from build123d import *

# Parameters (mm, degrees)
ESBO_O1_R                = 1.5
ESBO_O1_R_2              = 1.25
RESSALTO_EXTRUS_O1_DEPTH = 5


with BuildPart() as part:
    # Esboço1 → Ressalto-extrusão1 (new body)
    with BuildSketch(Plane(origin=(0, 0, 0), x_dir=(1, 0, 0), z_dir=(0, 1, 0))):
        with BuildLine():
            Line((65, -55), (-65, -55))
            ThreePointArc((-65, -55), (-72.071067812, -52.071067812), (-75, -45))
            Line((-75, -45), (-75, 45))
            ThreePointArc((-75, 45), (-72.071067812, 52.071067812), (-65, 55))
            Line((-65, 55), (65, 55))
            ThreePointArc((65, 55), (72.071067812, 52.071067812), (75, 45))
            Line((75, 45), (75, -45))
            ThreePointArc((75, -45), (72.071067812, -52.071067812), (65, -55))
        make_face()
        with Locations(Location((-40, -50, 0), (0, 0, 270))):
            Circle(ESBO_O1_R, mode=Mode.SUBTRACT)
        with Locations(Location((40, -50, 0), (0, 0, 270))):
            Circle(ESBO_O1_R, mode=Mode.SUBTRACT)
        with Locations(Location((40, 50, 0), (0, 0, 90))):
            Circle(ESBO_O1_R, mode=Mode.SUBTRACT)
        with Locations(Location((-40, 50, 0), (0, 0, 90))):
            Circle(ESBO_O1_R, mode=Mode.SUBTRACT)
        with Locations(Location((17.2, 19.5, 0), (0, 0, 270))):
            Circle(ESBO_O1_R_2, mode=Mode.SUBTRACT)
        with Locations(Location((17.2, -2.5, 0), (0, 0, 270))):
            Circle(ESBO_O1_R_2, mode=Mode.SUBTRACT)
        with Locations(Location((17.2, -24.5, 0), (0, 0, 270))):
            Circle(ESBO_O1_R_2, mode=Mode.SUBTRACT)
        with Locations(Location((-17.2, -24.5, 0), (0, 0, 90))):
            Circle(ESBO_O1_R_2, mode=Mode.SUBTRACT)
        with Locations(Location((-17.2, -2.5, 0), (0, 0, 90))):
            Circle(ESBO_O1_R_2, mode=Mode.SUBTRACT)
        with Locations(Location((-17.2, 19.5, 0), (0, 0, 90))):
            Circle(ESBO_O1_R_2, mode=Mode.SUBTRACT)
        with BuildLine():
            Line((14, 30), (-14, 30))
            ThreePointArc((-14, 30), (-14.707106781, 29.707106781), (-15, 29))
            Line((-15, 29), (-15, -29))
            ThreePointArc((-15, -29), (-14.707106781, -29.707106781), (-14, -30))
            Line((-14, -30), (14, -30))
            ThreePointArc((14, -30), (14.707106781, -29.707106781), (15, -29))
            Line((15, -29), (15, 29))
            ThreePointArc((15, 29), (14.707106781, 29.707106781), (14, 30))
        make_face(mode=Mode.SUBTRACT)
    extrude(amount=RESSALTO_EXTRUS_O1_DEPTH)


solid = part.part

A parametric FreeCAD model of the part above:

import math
import FreeCAD as App
import Part
import Sketcher

doc = App.newDocument("Part")
params = doc.addObject("Spreadsheet::Sheet", "Params")
for row, (alias, value) in enumerate([
    ("sketch1_diameter", "3 mm"),
    ("sketch1_radius", "10 mm"),
    ("sketch1_radius2", "1 mm"),
    ("sketch1_diameter2", "2.5 mm"),
    ("sketch1_width", "130 mm"),
    ("pad1_length", "5 mm"),
], start=1):
    params.set(f"A{row}", alias)
    params.set(f"B{row}", "=" + value)
    params.setAlias(f"B{row}", alias)

body = doc.addObject("PartDesign::Body", "Body")

# Sketch on XZ plane
sketch1 = body.newObject("Sketcher::SketchObject", "Sketch")
sketch1.AttachmentSupport = (doc.getObject("XZ_Plane"), [""])
sketch1.MapMode = "FlatFace"
sketch1.addGeometry([
    Part.LineSegment(App.Vector(-65, 55, 0), App.Vector(65, 55, 0)),  # 0
    Part.ArcOfCircle(Part.Circle(App.Vector(65, 45, 0), App.Vector(0, 0, 1), 10), math.radians(0), math.radians(90)),  # 1
    Part.LineSegment(App.Vector(75, 45, 0), App.Vector(75, -45, 0)),  # 2
    Part.ArcOfCircle(Part.Circle(App.Vector(65, -45, 0), App.Vector(0, 0, 1), 10), math.radians(-90), math.radians(0)),  # 3
    Part.LineSegment(App.Vector(65, -55, 0), App.Vector(-65, -55, 0)),  # 4
    Part.ArcOfCircle(Part.Circle(App.Vector(-65, -45, 0), App.Vector(0, 0, 1), 10), math.radians(180), math.radians(270)),  # 5
    Part.LineSegment(App.Vector(-75, -45, 0), App.Vector(-75, 45, 0)),  # 6
    Part.ArcOfCircle(Part.Circle(App.Vector(-65, 45, 0), App.Vector(0, 0, 1), 10), math.radians(90), math.radians(180)),  # 7
    Part.Circle(App.Vector(40, 50, 0), App.Vector(0, 0, 1), 1.5),  # 8
    Part.Circle(App.Vector(17.2, 24.5, 0), App.Vector(0, 0, 1), 1.25),  # 9
    Part.Circle(App.Vector(17.2, 2.5, 0), App.Vector(0, 0, 1), 1.25),  # 10
    Part.Circle(App.Vector(-40, 50, 0), App.Vector(0, 0, 1), 1.5),  # 11
    Part.Circle(App.Vector(-17.2, 24.5, 0), App.Vector(0, 0, 1), 1.25),  # 12
    Part.ArcOfCircle(Part.Circle(App.Vector(14, -29, 0), App.Vector(0, 0, 1), 1), math.radians(-90), math.radians(0)),  # 13
    Part.LineSegment(App.Vector(15, -29, 0), App.Vector(15, 29, 0)),  # 14
    Part.ArcOfCircle(Part.Circle(App.Vector(14, 29, 0), App.Vector(0, 0, 1), 1), math.radians(0), math.radians(90)),  # 15
    Part.LineSegment(App.Vector(14, 30, 0), App.Vector(-14, 30, 0)),  # 16
    Part.ArcOfCircle(Part.Circle(App.Vector(-14, 29, 0), App.Vector(0, 0, 1), 1), math.radians(90), math.radians(180)),  # 17
    Part.LineSegment(App.Vector(-15, 29, 0), App.Vector(-15, -29, 0)),  # 18
    Part.ArcOfCircle(Part.Circle(App.Vector(-14, -29, 0), App.Vector(0, 0, 1), 1), math.radians(-180), math.radians(-90)),  # 19
    Part.LineSegment(App.Vector(-14, -30, 0), App.Vector(14, -30, 0)),  # 20
    Part.Circle(App.Vector(-17.2, 2.5, 0), App.Vector(0, 0, 1), 1.25),  # 21
    Part.Circle(App.Vector(17.2, -19.5, 0), App.Vector(0, 0, 1), 1.25),  # 22
    Part.Circle(App.Vector(40, -50, 0), App.Vector(0, 0, 1), 1.5),  # 23
    Part.Circle(App.Vector(-17.2, -19.5, 0), App.Vector(0, 0, 1), 1.25),  # 24
    Part.Circle(App.Vector(-40, -50, 0), App.Vector(0, 0, 1), 1.5),  # 25
], False)
sketch1.addConstraint([
    Sketcher.Constraint("Tangent", 0, 2, 1, 2),
    Sketcher.Constraint("Tangent", 1, 1, 2, 1),
    Sketcher.Constraint("Tangent", 2, 2, 3, 2),
    Sketcher.Constraint("Tangent", 3, 1, 4, 1),
    Sketcher.Constraint("Tangent", 4, 2, 5, 2),
    Sketcher.Constraint("Tangent", 5, 1, 6, 1),
    Sketcher.Constraint("Tangent", 6, 2, 7, 2),
    Sketcher.Constraint("Tangent", 7, 1, 0, 1),
    Sketcher.Constraint("Tangent", 13, 2, 14, 1),
    Sketcher.Constraint("Tangent", 14, 2, 15, 1),
    Sketcher.Constraint("Tangent", 15, 2, 16, 1),
    Sketcher.Constraint("Tangent", 16, 2, 17, 1),
    Sketcher.Constraint("Tangent", 17, 2, 18, 1),
    Sketcher.Constraint("Tangent", 18, 2, 19, 1),
    Sketcher.Constraint("Tangent", 19, 2, 20, 1),
    Sketcher.Constraint("Tangent", 20, 2, 13, 1),
    Sketcher.Constraint("Horizontal", 0),
    Sketcher.Constraint("Vertical", 2),
    Sketcher.Constraint("Horizontal", 4),
    Sketcher.Constraint("Vertical", 6),
    Sketcher.Constraint("Vertical", 14),
    Sketcher.Constraint("Horizontal", 16),
    Sketcher.Constraint("Vertical", 18),
    Sketcher.Constraint("Horizontal", 20),
    Sketcher.Constraint("Equal", 1, 3),
    Sketcher.Constraint("Equal", 3, 5),
    Sketcher.Constraint("Equal", 5, 7),
    Sketcher.Constraint("Equal", 9, 10),
    Sketcher.Constraint("Equal", 8, 11),
    Sketcher.Constraint("Equal", 10, 12),
    Sketcher.Constraint("Equal", 13, 15),
    Sketcher.Constraint("Equal", 15, 17),
    Sketcher.Constraint("Equal", 17, 19),
    Sketcher.Constraint("Equal", 12, 21),
    Sketcher.Constraint("Equal", 21, 22),
    Sketcher.Constraint("Equal", 11, 23),
    Sketcher.Constraint("Equal", 22, 24),
    Sketcher.Constraint("Equal", 23, 25),
    Sketcher.Constraint("Symmetric", 1, 3, 5, 3, -1, 1),
    Sketcher.Constraint("Symmetric", 13, 3, 17, 3, -1, 1),
    Sketcher.Constraint("Symmetric", 11, 3, 23, 3, -1, 1),
    Sketcher.Constraint("Symmetric", 8, 3, 25, 3, -1, 1),
    Sketcher.Constraint("Symmetric", 8, 3, 11, 3, -2),
    Sketcher.Constraint("Symmetric", 9, 3, 12, 3, -2),
    Sketcher.Constraint("Symmetric", 10, 3, 21, 3, -2),
    Sketcher.Constraint("Symmetric", 22, 3, 24, 3, -2),
    Sketcher.Constraint("Vertical", 9, 3, 10, 3),
    Sketcher.Constraint("Vertical", 10, 3, 22, 3),
    Sketcher.Constraint("Diameter", 8, 3.0),
    Sketcher.Constraint("Radius", 1, 10.0),
    Sketcher.Constraint("Radius", 13, 1.0),
    Sketcher.Constraint("Diameter", 9, 2.5),
    Sketcher.Constraint("DistanceX", 0, 1, 0, 2, 130.0),
    Sketcher.Constraint("DistanceX", 16, 2, 16, 1, 28.0),
    Sketcher.Constraint("DistanceY", 2, 2, 2, 1, 90.0),
    Sketcher.Constraint("DistanceY", 14, 1, 14, 2, 58.0),
    Sketcher.Constraint("DistanceX", -1, 1, 8, 3, 40.0),
    Sketcher.Constraint("DistanceY", -1, 1, 8, 3, 50.0),
    Sketcher.Constraint("DistanceY", 10, 3, 9, 3, 22.0),
    Sketcher.Constraint("DistanceY", 22, 3, 10, 3, 22.0),
    Sketcher.Constraint("DistanceX", -1, 1, 9, 3, 17.2),
    Sketcher.Constraint("DistanceY", -1, 1, 9, 3, 24.5),
])
sketch1.setExpression("Constraints[48]", "Params.sketch1_diameter")
sketch1.setExpression("Constraints[49]", "Params.sketch1_radius")
sketch1.setExpression("Constraints[50]", "Params.sketch1_radius2")
sketch1.setExpression("Constraints[51]", "Params.sketch1_diameter2")
sketch1.setExpression("Constraints[52]", "Params.sketch1_width")
pad1 = body.newObject("PartDesign::Pad", "Pad")
pad1.Profile = sketch1
pad1.setExpression("Length", "Params.pad1_length")
pad1.Reversed = True

doc.recompute()
